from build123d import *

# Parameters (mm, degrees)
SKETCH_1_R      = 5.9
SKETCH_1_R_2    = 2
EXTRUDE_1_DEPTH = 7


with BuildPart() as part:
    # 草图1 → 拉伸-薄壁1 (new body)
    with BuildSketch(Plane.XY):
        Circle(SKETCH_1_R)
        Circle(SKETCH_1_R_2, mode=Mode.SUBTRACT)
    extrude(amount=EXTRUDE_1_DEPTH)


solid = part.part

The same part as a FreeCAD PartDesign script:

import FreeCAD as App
import Part
import Sketcher
from FreeCAD import Vector

doc = App.newDocument("Part")
body = doc.addObject("PartDesign::Body", "Body")

sketch1 = body.newObject("Sketcher::SketchObject", "Sketch")
sketch1.AttachmentSupport = (doc.getObject("XY_Plane"), [""])
sketch1.MapMode = "FlatFace"
sketch1.addGeometry([
    Part.Circle(Vector(0, 0, 0), Vector(0, 0, 1), 5.9),
    Part.Circle(Vector(0, 0, 0), Vector(0, 0, 1), 2),
], False)
sketch1.addConstraint([
    Sketcher.Constraint("Coincident", 0, 3, -1, 1),
    Sketcher.Constraint("Coincident", 1, 3, -1, 1),
    Sketcher.Constraint("Diameter", 1, 4.0),
    Sketcher.Constraint("Diameter", 0, 11.8),
])
pad1 = body.newObject("PartDesign::Pad", "Pad")
pad1.Profile = sketch1
pad1.Length = 7

doc.recompute()
